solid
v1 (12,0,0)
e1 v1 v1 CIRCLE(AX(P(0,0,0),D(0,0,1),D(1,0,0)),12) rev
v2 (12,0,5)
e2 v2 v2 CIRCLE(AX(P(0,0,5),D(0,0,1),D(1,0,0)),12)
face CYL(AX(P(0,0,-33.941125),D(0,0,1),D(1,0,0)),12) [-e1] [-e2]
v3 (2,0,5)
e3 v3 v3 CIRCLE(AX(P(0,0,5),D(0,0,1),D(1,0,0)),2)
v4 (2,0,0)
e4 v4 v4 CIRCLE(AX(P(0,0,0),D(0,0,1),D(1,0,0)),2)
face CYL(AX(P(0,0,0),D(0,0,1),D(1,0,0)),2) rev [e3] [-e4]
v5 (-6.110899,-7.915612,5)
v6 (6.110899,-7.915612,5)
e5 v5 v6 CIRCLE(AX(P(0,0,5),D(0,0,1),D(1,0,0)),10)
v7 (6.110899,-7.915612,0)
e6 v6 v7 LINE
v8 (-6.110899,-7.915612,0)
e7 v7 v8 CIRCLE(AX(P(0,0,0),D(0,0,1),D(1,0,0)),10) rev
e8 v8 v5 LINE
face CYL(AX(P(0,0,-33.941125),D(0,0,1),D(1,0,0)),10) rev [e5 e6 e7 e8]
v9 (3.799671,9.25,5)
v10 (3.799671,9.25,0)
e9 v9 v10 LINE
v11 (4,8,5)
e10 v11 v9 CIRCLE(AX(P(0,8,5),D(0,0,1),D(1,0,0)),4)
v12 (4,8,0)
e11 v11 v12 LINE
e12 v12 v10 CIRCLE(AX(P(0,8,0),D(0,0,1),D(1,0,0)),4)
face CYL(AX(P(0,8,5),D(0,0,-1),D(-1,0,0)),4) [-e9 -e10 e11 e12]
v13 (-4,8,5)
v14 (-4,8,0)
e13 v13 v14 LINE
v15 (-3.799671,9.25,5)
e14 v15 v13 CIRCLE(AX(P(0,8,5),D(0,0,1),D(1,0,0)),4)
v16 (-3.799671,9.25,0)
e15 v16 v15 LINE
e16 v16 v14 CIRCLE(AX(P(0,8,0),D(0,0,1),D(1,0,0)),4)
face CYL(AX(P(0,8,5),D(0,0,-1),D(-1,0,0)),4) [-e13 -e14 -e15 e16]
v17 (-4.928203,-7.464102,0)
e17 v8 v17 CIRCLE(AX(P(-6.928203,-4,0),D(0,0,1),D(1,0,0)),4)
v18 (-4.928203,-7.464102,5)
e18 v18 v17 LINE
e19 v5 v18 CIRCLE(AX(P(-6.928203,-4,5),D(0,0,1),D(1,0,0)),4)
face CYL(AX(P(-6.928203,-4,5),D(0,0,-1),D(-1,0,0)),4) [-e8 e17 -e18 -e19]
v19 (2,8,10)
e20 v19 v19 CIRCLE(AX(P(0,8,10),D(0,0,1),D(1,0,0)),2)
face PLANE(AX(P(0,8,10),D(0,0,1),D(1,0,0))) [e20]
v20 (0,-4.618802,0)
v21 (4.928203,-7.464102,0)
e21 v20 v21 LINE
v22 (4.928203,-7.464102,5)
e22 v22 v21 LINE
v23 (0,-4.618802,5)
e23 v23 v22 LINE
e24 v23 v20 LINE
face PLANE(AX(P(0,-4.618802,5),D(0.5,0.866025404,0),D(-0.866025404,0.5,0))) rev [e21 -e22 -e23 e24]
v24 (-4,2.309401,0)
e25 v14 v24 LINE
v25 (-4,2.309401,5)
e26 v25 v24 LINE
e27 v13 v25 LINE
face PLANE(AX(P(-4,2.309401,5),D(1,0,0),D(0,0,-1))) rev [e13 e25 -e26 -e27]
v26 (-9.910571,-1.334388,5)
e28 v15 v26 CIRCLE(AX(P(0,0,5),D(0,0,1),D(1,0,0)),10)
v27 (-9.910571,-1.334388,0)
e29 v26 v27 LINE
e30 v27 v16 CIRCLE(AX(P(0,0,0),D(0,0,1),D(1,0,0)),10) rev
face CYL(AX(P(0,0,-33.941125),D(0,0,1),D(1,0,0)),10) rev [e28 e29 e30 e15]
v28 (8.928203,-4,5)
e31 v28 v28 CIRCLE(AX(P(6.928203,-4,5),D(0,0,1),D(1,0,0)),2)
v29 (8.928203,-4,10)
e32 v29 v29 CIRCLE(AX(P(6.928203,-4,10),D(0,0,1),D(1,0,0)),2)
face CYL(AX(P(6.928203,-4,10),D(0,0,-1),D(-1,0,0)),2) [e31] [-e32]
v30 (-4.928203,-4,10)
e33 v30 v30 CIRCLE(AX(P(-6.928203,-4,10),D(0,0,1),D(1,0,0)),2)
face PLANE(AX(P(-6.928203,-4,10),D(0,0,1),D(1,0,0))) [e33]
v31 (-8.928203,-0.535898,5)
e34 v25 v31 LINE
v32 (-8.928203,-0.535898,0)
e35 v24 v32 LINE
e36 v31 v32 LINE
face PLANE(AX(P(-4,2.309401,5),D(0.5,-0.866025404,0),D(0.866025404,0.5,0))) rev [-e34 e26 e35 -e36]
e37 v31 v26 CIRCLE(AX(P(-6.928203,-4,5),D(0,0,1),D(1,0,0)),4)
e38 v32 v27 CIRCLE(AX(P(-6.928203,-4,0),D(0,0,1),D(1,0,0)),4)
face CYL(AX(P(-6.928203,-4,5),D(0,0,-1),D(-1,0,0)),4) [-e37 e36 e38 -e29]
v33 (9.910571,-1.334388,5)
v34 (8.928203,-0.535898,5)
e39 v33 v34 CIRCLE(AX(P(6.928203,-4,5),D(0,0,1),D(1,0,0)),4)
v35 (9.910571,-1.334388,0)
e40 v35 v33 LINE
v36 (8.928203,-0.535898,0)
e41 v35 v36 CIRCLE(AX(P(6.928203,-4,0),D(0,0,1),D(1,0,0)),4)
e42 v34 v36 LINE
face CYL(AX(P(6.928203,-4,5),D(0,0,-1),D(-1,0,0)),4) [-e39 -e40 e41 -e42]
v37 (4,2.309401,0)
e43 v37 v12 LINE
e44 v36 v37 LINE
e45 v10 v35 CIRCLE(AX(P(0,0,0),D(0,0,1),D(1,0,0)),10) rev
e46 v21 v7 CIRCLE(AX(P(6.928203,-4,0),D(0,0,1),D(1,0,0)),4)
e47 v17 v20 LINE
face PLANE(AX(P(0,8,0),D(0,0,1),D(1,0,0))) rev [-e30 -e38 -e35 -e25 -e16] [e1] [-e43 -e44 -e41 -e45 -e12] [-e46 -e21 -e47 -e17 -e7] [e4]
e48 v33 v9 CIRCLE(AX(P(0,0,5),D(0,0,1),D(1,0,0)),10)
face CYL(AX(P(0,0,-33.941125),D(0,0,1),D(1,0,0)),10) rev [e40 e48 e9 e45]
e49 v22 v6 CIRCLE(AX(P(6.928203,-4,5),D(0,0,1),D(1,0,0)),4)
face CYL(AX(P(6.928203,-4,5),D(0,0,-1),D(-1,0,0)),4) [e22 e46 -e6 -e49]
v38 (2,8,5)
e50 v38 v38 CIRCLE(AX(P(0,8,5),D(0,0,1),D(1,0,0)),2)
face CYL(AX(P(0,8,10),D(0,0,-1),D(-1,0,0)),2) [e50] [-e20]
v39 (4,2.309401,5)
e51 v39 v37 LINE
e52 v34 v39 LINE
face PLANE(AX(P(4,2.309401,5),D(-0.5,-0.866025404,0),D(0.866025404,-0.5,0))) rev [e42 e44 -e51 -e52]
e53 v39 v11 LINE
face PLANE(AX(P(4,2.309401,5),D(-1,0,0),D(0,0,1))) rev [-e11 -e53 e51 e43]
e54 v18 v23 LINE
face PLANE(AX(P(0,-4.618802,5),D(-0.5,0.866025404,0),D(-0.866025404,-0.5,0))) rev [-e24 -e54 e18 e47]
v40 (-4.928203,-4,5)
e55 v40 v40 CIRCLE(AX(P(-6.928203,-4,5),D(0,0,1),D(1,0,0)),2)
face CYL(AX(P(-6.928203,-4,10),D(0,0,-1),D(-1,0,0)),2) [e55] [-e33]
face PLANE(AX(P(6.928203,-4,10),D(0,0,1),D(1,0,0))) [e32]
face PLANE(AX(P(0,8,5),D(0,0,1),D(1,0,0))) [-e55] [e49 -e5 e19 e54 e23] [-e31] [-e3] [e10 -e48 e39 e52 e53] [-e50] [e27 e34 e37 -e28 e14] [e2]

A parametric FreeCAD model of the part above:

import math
import FreeCAD as App
import Part
import Sketcher

doc = App.newDocument("Part")
body = doc.addObject("PartDesign::Body", "Body")

sketch1 = body.newObject("Sketcher::SketchObject", "Sketch")
sketch1.AttachmentSupport = (doc.getObject("XY_Plane"), [""])
sketch1.MapMode = "FlatFace"
sketch1.addGeometry(Part.LineSegment(App.Vector(4, 2.3, 0), App.Vector(4, 8, 0)), False)
sketch1.addGeometry(Part.ArcOfCircle(Part.Circle(App.Vector(0, 8, 0), App.Vector(0, 0, 1), 4), math.radians(0), math.radians(180)), False)
sketch1.addGeometry(Part.LineSegment(App.Vector(-4, 8, 0), App.Vector(-4, 2.3, 0)), False)
sketch1.addGeometry(Part.LineSegment(App.Vector(-4, 2.3, 0), App.Vector(-8.9, -0.5, 0)), False)
sketch1.addGeometry(Part.ArcOfCircle(Part.Circle(App.Vector(-6.9, -4, 0), App.Vector(0, 0, 1), 4), math.radians(120), math.radians(300)), False)
sketch1.addGeometry(Part.LineSegment(App.Vector(-4.9, -7.5, 0), App.Vector(0, -4.6, 0)), False)
sketch1.addGeometry(Part.LineSegment(App.Vector(0, -4.6, 0), App.Vector(4.9, -7.5, 0)), False)
sketch1.addGeometry(Part.ArcOfCircle(Part.Circle(App.Vector(6.9, -4, 0), App.Vector(0, 0, 1), 4), math.radians(-120), math.radians(60)), False)
sketch1.addGeometry(Part.LineSegment(App.Vector(8.9, -0.5, 0), App.Vector(4, 2.3, 0)), False)
sketch1.addConstraint(Sketcher.Constraint("Tangent", 0, 2, 1, 1))
sketch1.addConstraint(Sketcher.Constraint("Tangent", 1, 2, 2, 1))
sketch1.addConstraint(Sketcher.Constraint("Coincident", 2, 2, 3, 1))
sketch1.addConstraint(Sketcher.Constraint("Tangent", 3, 2, 4, 1))
sketch1.addConstraint(Sketcher.Constraint("Tangent", 4, 2, 5, 1))
sketch1.addConstraint(Sketcher.Constraint("Coincident", 5, 2, 6, 1))
sketch1.addConstraint(Sketcher.Constraint("Tangent", 6, 2, 7, 1))
sketch1.addConstraint(Sketcher.Constraint("Tangent", 7, 2, 8, 1))
sketch1.addConstraint(Sketcher.Constraint("Coincident", 8, 2, 0, 1))
sketch1.addConstraint(Sketcher.Constraint("Vertical", 0))
sketch1.addConstraint(Sketcher.Constraint("Vertical", 2))
sketch1.addConstraint(Sketcher.Constraint("Equal", 1, 4))
sketch1.addConstraint(Sketcher.Constraint("Equal", 4, 7))
sketch1.addConstraint(Sketcher.Constraint("Symmetric", 4, 3, 7, 3, -2))
sketch1.addConstraint(Sketcher.Constraint("Symmetric", 2, 2, 8, 2, -2))
sketch1.addConstraint(Sketcher.Constraint("PointOnObject", 5, 2, -2))
sketch1.addConstraint(Sketcher.Constraint("Parallel", 3, 5))
sketch1.addConstraint(Sketcher.Constraint("Equal", 3, 5))
sketch1.addConstraint(Sketcher.Constraint("Radius", 1, 4.0))
sketch1.addConstraint(Sketcher.Constraint("DistanceY", -1, 1, 1, 3, 8.0))
sketch1.addConstraint(Sketcher.Constraint("DistanceY", 4, 3, -1, 1, 4.0))
sketch1.addConstraint(Sketcher.Constraint("DistanceY", 0, 1, 0, 2, 5.690599))
pad1 = body.newObject("PartDesign::Pad", "Pad")
pad1.Profile = sketch1
pad1.Length = 5

sketch2 = body.newObject("Sketcher::SketchObject", "Sketch001")
sketch2.AttachmentSupport = (doc.getObject("XY_Plane"), [""])
sketch2.MapMode = "FlatFace"
sketch2.AttachmentOffset = App.Placement(App.Vector(0, 0, 5), App.Rotation())
sketch2.addGeometry(Part.Circle(App.Vector(0, 8, 0), App.Vector(0, 0, 1), 2), False)
sketch2.addGeometry(Part.Circle(App.Vector(6.9, -4, 0), App.Vector(0, 0, 1), 2), False)
sketch2.addGeometry(Part.Circle(App.Vector(-6.9, -4, 0), App.Vector(0, 0, 1), 2), False)
sketch2.addGeometry(Part.Circle(App.Vector(0, 0, 0), App.Vector(0, 0, 1), 2), False)
sketch2.addConstraint(Sketcher.Constraint("Coincident", 3, 3, -1, 1))
sketch2.addConstraint(Sketcher.Constraint("Equal", 0, 1))
sketch2.addConstraint(Sketcher.Constraint("Equal", 1, 2))
sketch2.addConstraint(Sketcher.Constraint("Equal", 2, 3))
sketch2.addConstraint(Sketcher.Constraint("Symmetric", 1, 3, 2, 3, -2))
sketch2.addConstraint(Sketcher.Constraint("PointOnObject", 0, 3, -2))
sketch2.addConstraint(Sketcher.Constraint("Diameter", 0, 4.0))
sketch2.addConstraint(Sketcher.Constraint("DistanceY", -1, 1, 0, 3, 8.0))
sketch2.addConstraint(Sketcher.Constraint("DistanceY", 1, 3, -1, 1, 4.0))
sketch2.addConstraint(Sketcher.Constraint("DistanceX", -1, 1, 1, 3, 6.928203))
pad2 = body.newObject("PartDesign::Pad", "Pad001")
pad2.Profile = sketch2
pad2.Length = 5

sketch3 = body.newObject("Sketcher::SketchObject", "Sketch002")
sketch3.AttachmentSupport = (doc.getObject("XY_Plane"), [""])
sketch3.MapMode = "FlatFace"
sketch3.AttachmentOffset = App.Placement(App.Vector(0, 0, 5), App.Rotation())
sketch3.addGeometry(Part.Circle(App.Vector(0, 0, 0), App.Vector(0, 0, 1), 2), False)
sketch3.addConstraint(Sketcher.Constraint("Coincident", 0, 3, -1, 1))
sketch3.addConstraint(Sketcher.Constraint("Diameter", 0, 4.0))
pocket1 = body.newObject("PartDesign::Pocket", "Pocket")
pocket1.Profile = sketch3
pocket1.Type = "ThroughAll"
pocket1.Midplane = True

sketch4 = body.newObject("Sketcher::SketchObject", "Sketch003")
sketch4.AttachmentSupport = (doc.getObject("XY_Plane"), [""])
sketch4.MapMode = "FlatFace"
sketch4.AttachmentOffset = App.Placement(App.Vector(0, 0, 5), App.Rotation())
sketch4.addGeometry(Part.Circle(App.Vector(0, 0, 0), App.Vector(0, 0, 1), 12), False)
sketch4.addGeometry(Part.Circle(App.Vector(0, 0, 0), App.Vector(0, 0, 1), 10), False)
sketch4.addConstraint(Sketcher.Constraint("Coincident", 0, 3, -1, 1))
sketch4.addConstraint(Sketcher.Constraint("Coincident", 1, 3, -1, 1))
sketch4.addConstraint(Sketcher.Constraint("Diameter", 0, 24.0))
sketch4.addConstraint(Sketcher.Constraint("Diameter", 1, 20.0))
pad3 = body.newObject("PartDesign::Pad", "Pad002")
pad3.Profile = sketch4
pad3.Length = 5
pad3.Reversed = True

doc.recompute()
